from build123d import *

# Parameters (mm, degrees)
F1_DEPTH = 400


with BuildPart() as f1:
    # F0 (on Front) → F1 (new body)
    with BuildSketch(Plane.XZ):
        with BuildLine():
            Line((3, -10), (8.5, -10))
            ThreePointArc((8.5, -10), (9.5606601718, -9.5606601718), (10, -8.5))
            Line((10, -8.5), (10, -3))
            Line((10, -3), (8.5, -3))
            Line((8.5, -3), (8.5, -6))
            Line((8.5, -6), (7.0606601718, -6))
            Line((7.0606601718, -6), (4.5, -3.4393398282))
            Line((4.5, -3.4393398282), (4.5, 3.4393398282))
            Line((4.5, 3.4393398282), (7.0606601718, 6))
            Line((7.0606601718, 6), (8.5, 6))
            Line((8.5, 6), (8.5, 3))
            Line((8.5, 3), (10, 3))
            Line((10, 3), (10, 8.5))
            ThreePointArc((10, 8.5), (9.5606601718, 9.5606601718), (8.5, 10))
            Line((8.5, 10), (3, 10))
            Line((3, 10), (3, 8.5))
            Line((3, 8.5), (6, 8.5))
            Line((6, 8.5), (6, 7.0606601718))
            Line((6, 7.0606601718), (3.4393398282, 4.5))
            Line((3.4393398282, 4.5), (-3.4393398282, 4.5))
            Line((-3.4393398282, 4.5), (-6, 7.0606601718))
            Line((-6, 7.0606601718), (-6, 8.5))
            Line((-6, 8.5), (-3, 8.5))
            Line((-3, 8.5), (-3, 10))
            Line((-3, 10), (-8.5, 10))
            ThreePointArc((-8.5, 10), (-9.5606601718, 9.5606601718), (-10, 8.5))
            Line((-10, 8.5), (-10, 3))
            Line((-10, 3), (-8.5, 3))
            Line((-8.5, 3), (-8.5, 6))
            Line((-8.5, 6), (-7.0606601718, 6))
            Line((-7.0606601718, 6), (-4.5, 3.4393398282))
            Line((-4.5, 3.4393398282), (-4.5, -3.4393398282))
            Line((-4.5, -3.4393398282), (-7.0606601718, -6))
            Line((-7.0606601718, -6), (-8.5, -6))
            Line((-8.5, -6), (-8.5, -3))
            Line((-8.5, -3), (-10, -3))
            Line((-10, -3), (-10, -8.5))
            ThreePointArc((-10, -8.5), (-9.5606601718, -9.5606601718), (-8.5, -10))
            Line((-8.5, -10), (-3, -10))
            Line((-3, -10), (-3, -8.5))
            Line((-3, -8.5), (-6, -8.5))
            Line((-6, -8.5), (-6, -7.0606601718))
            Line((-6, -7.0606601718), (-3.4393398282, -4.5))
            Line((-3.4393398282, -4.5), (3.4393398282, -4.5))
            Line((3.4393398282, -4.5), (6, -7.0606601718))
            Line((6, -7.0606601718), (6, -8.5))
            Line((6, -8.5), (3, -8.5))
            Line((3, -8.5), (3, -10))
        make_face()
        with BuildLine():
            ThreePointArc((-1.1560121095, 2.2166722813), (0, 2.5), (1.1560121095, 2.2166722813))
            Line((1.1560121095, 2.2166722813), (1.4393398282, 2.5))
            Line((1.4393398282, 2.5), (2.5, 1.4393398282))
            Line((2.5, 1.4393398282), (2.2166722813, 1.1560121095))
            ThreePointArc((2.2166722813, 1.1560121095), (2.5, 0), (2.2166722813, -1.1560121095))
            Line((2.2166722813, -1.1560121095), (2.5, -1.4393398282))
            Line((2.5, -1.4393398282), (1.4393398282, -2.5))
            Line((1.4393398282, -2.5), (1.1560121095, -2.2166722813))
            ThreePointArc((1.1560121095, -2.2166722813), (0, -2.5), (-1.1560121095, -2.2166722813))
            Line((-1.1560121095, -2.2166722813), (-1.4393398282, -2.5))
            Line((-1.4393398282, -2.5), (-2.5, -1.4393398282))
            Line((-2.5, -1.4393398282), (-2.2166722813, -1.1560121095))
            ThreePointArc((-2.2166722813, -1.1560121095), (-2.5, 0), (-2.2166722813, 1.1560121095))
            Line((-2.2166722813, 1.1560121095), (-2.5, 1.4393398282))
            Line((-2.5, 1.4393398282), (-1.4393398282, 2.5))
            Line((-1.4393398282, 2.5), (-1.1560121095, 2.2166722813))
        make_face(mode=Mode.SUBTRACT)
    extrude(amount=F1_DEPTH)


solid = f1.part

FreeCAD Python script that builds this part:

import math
import FreeCAD as App
import Part
import Sketcher

doc = App.newDocument("Part")
body = doc.addObject("PartDesign::Body", "Body")

# Sketch on XZ plane
sketch1 = body.newObject("Sketcher::SketchObject", "Sketch")
sketch1.AttachmentSupport = (doc.getObject("XZ_Plane"), [""])
sketch1.MapMode = "FlatFace"
sketch1.addGeometry([
    Part.LineSegment(App.Vector(3, -10, 0), App.Vector(8.5, -10, 0)),  # 0
    Part.ArcOfCircle(Part.Circle(App.Vector(8.5, -8.5, 0), App.Vector(0, 0, 1), 1.5), math.radians(-90), math.radians(0)),  # 1
    Part.LineSegment(App.Vector(10, -8.5, 0), App.Vector(10, -3, 0)),  # 2
    Part.LineSegment(App.Vector(10, -3, 0), App.Vector(8.5, -3, 0)),  # 3
    Part.LineSegment(App.Vector(8.5, -3, 0), App.Vector(8.5, -6, 0)),  # 4
    Part.LineSegment(App.Vector(8.5, -6, 0), App.Vector(7.06066, -6, 0)),  # 5
    Part.LineSegment(App.Vector(7.06066, -6, 0), App.Vector(4.5, -3.43934, 0)),  # 6
    Part.LineSegment(App.Vector(4.5, -3.43934, 0), App.Vector(4.5, 3.43934, 0)),  # 7
    Part.LineSegment(App.Vector(4.5, 3.43934, 0), App.Vector(7.06066, 6, 0)),  # 8
    Part.LineSegment(App.Vector(7.06066, 6, 0), App.Vector(8.5, 6, 0)),  # 9
    Part.LineSegment(App.Vector(8.5, 6, 0), App.Vector(8.5, 3, 0)),  # 10
    Part.LineSegment(App.Vector(8.5, 3, 0), App.Vector(10, 3, 0)),  # 11
    Part.LineSegment(App.Vector(10, 3, 0), App.Vector(10, 8.5, 0)),  # 12
    Part.ArcOfCircle(Part.Circle(App.Vector(8.5, 8.5, 0), App.Vector(0, 0, 1), 1.5), math.radians(0), math.radians(90)),  # 13
    Part.LineSegment(App.Vector(8.5, 10, 0), App.Vector(3, 10, 0)),  # 14
    Part.LineSegment(App.Vector(3, 10, 0), App.Vector(3, 8.5, 0)),  # 15
    Part.LineSegment(App.Vector(3, 8.5, 0), App.Vector(6, 8.5, 0)),  # 16
    Part.LineSegment(App.Vector(6, 8.5, 0), App.Vector(6, 7.06066, 0)),  # 17
    Part.LineSegment(App.Vector(6, 7.06066, 0), App.Vector(3.43934, 4.5, 0)),  # 18
    Part.LineSegment(App.Vector(3.43934, 4.5, 0), App.Vector(-3.43934, 4.5, 0)),  # 19
    Part.LineSegment(App.Vector(-3.43934, 4.5, 0), App.Vector(-6, 7.06066, 0)),  # 20
    Part.LineSegment(App.Vector(-6, 7.06066, 0), App.Vector(-6, 8.5, 0)),  # 21
    Part.LineSegment(App.Vector(-6, 8.5, 0), App.Vector(-3, 8.5, 0)),  # 22
    Part.LineSegment(App.Vector(-3, 8.5, 0), App.Vector(-3, 10, 0)),  # 23
    Part.LineSegment(App.Vector(-3, 10, 0), App.Vector(-8.5, 10, 0)),  # 24
    Part.ArcOfCircle(Part.Circle(App.Vector(-8.5, 8.5, 0), App.Vector(0, 0, 1), 1.5), math.radians(90), math.radians(180)),  # 25
    Part.LineSegment(App.Vector(-10, 8.5, 0), App.Vector(-10, 3, 0)),  # 26
    Part.LineSegment(App.Vector(-10, 3, 0), App.Vector(-8.5, 3, 0)),  # 27
    Part.LineSegment(App.Vector(-8.5, 3, 0), App.Vector(-8.5, 6, 0)),  # 28
    Part.LineSegment(App.Vector(-8.5, 6, 0), App.Vector(-7.06066, 6, 0)),  # 29
    Part.LineSegment(App.Vector(-7.06066, 6, 0), App.Vector(-4.5, 3.43934, 0)),  # 30
    Part.LineSegment(App.Vector(-4.5, 3.43934, 0), App.Vector(-4.5, -3.43934, 0)),  # 31
    Part.LineSegment(App.Vector(-4.5, -3.43934, 0), App.Vector(-7.06066, -6, 0)),  # 32
    Part.LineSegment(App.Vector(-7.06066, -6, 0), App.Vector(-8.5, -6, 0)),  # 33
    Part.LineSegment(App.Vector(-8.5, -6, 0), App.Vector(-8.5, -3, 0)),  # 34
    Part.LineSegment(App.Vector(-8.5, -3, 0), App.Vector(-10, -3, 0)),  # 35
    Part.LineSegment(App.Vector(-10, -3, 0), App.Vector(-10, -8.5, 0)),  # 36
    Part.ArcOfCircle(Part.Circle(App.Vector(-8.5, -8.5, 0), App.Vector(0, 0, 1), 1.5), math.radians(180), math.radians(270)),  # 37
    Part.LineSegment(App.Vector(-8.5, -10, 0), App.Vector(-3, -10, 0)),  # 38
    Part.LineSegment(App.Vector(-3, -10, 0), App.Vector(-3, -8.5, 0)),  # 39
    Part.LineSegment(App.Vector(-3, -8.5, 0), App.Vector(-6, -8.5, 0)),  # 40
    Part.LineSegment(App.Vector(-6, -8.5, 0), App.Vector(-6, -7.06066, 0)),  # 41
    Part.LineSegment(App.Vector(-6, -7.06066, 0), App.Vector(-3.43934, -4.5, 0)),  # 42
    Part.LineSegment(App.Vector(-3.43934, -4.5, 0), App.Vector(3.43934, -4.5, 0)),  # 43
    Part.LineSegment(App.Vector(3.43934, -4.5, 0), App.Vector(6, -7.06066, 0)),  # 44
    Part.LineSegment(App.Vector(6, -7.06066, 0), App.Vector(6, -8.5, 0)),  # 45
    Part.LineSegment(App.Vector(6, -8.5, 0), App.Vector(3, -8.5, 0)),  # 46
    Part.LineSegment(App.Vector(3, -8.5, 0), App.Vector(3, -10, 0)),  # 47
    Part.LineSegment(App.Vector(-1.43934, 2.5, 0), App.Vector(-1.156012, 2.216672, 0)),  # 48
    Part.ArcOfCircle(Part.Circle(App.Vector(0, 0, 0), App.Vector(0, 0, 1), 2.5), math.radians(62.457603), math.radians(117.542397)),  # 49
    Part.LineSegment(App.Vector(1.156012, 2.216672, 0), App.Vector(1.43934, 2.5, 0)),  # 50
    Part.LineSegment(App.Vector(1.43934, 2.5, 0), App.Vector(2.5, 1.43934, 0)),  # 51
    Part.LineSegment(App.Vector(2.5, 1.43934, 0), App.Vector(2.216672, 1.156012, 0)),  # 52
    Part.ArcOfCircle(Part.Circle(App.Vector(0, 0, 0), App.Vector(0, 0, 1), 2.5), math.radians(-27.542397), math.radians(27.542397)),  # 53
    Part.LineSegment(App.Vector(2.216672, -1.156012, 0), App.Vector(2.5, -1.43934, 0)),  # 54
    Part.LineSegment(App.Vector(2.5, -1.43934, 0), App.Vector(1.43934, -2.5, 0)),  # 55
    Part.LineSegment(App.Vector(1.43934, -2.5, 0), App.Vector(1.156012, -2.216672, 0)),  # 56
    Part.ArcOfCircle(Part.Circle(App.Vector(0, 0, 0), App.Vector(0, 0, 1), 2.5), math.radians(-117.542397), math.radians(-62.457603)),  # 57
    Part.LineSegment(App.Vector(-1.156012, -2.216672, 0), App.Vector(-1.43934, -2.5, 0)),  # 58
    Part.LineSegment(App.Vector(-1.43934, -2.5, 0), App.Vector(-2.5, -1.43934, 0)),  # 59
    Part.LineSegment(App.Vector(-2.5, -1.43934, 0), App.Vector(-2.216672, -1.156012, 0)),  # 60
    Part.ArcOfCircle(Part.Circle(App.Vector(0, 0, 0), App.Vector(0, 0, 1), 2.5), math.radians(152.457603), math.radians(207.542397)),  # 61
    Part.LineSegment(App.Vector(-2.216672, 1.156012, 0), App.Vector(-2.5, 1.43934, 0)),  # 62
    Part.LineSegment(App.Vector(-2.5, 1.43934, 0), App.Vector(-1.43934, 2.5, 0)),  # 63
], False)
sketch1.addConstraint([
    Sketcher.Constraint("Tangent", 0, 2, 1, 1),
    Sketcher.Constraint("Tangent", 1, 2, 2, 1),
    Sketcher.Constraint("Coincident", 2, 2, 3, 1),
    Sketcher.Constraint("Coincident", 3, 2, 4, 1),
    Sketcher.Constraint("Coincident", 4, 2, 5, 1),
    Sketcher.Constraint("Coincident", 5, 2, 6, 1),
    Sketcher.Constraint("Coincident", 6, 2, 7, 1),
    Sketcher.Constraint("Coincident", 7, 2, 8, 1),
    Sketcher.Constraint("Coincident", 8, 2, 9, 1),
    Sketcher.Constraint("Coincident", 9, 2, 10, 1),
    Sketcher.Constraint("Coincident", 10, 2, 11, 1),
    Sketcher.Constraint("Coincident", 11, 2, 12, 1),
    Sketcher.Constraint("Tangent", 12, 2, 13, 1),
    Sketcher.Constraint("Tangent", 13, 2, 14, 1),
    Sketcher.Constraint("Coincident", 14, 2, 15, 1),
    Sketcher.Constraint("Coincident", 15, 2, 16, 1),
    Sketcher.Constraint("Coincident", 16, 2, 17, 1),
    Sketcher.Constraint("Coincident", 17, 2, 18, 1),
    Sketcher.Constraint("Coincident", 18, 2, 19, 1),
    Sketcher.Constraint("Coincident", 19, 2, 20, 1),
    Sketcher.Constraint("Coincident", 20, 2, 21, 1),
    Sketcher.Constraint("Coincident", 21, 2, 22, 1),
    Sketcher.Constraint("Coincident", 22, 2, 23, 1),
    Sketcher.Constraint("Coincident", 23, 2, 24, 1),
    Sketcher.Constraint("Tangent", 24, 2, 25, 1),
    Sketcher.Constraint("Tangent", 25, 2, 26, 1),
    Sketcher.Constraint("Coincident", 26, 2, 27, 1),
    Sketcher.Constraint("Coincident", 27, 2, 28, 1),
    Sketcher.Constraint("Coincident", 28, 2, 29, 1),
    Sketcher.Constraint("Coincident", 29, 2, 30, 1),
    Sketcher.Constraint("Coincident", 30, 2, 31, 1),
    Sketcher.Constraint("Coincident", 31, 2, 32, 1),
    Sketcher.Constraint("Coincident", 32, 2, 33, 1),
    Sketcher.Constraint("Coincident", 33, 2, 34, 1),
    Sketcher.Constraint("Coincident", 34, 2, 35, 1),
    Sketcher.Constraint("Coincident", 35, 2, 36, 1),
    Sketcher.Constraint("Tangent", 36, 2, 37, 1),
    Sketcher.Constraint("Tangent", 37, 2, 38, 1),
    Sketcher.Constraint("Coincident", 38, 2, 39, 1),
    Sketcher.Constraint("Coincident", 39, 2, 40, 1),
    Sketcher.Constraint("Coincident", 40, 2, 41, 1),
    Sketcher.Constraint("Coincident", 41, 2, 42, 1),
    Sketcher.Constraint("Coincident", 42, 2, 43, 1),
    Sketcher.Constraint("Coincident", 43, 2, 44, 1),
    Sketcher.Constraint("Coincident", 44, 2, 45, 1),
    Sketcher.Constraint("Coincident", 45, 2, 46, 1),
    Sketcher.Constraint("Coincident", 46, 2, 47, 1),
    Sketcher.Constraint("Coincident", 47, 2, 0, 1),
    Sketcher.Constraint("Coincident", 48, 2, 49, 2),
    Sketcher.Constraint("Coincident", 49, 1, 50, 1),
    Sketcher.Constraint("Coincident", 50, 2, 51, 1),
    Sketcher.Constraint("Coincident", 51, 2, 52, 1),
    Sketcher.Constraint("Coincident", 52, 2, 53, 2),
    Sketcher.Constraint("Coincident", 53, 1, 54, 1),
    Sketcher.Constraint("Coincident", 54, 2, 55, 1),
    Sketcher.Constraint("Coincident", 55, 2, 56, 1),
    Sketcher.Constraint("Coincident", 56, 2, 57, 2),
    Sketcher.Constraint("Coincident", 57, 1, 58, 1),
    Sketcher.Constraint("Coincident", 58, 2, 59, 1),
    Sketcher.Constraint("Coincident", 59, 2, 60, 1),
    Sketcher.Constraint("Coincident", 60, 2, 61, 2),
    Sketcher.Constraint("Coincident", 61, 1, 62, 1),
    Sketcher.Constraint("Coincident", 62, 2, 63, 1),
    Sketcher.Constraint("Coincident", 63, 2, 48, 1),
    Sketcher.Constraint("Horizontal", 0),
    Sketcher.Constraint("Vertical", 2),
    Sketcher.Constraint("Horizontal", 3),
    Sketcher.Constraint("Vertical", 4),
    Sketcher.Constraint("Horizontal", 5),
    Sketcher.Constraint("Vertical", 7),
    Sketcher.Constraint("Horizontal", 9),
    Sketcher.Constraint("Vertical", 10),
    Sketcher.Constraint("Horizontal", 11),
    Sketcher.Constraint("Vertical", 12),
    Sketcher.Constraint("Horizontal", 14),
    Sketcher.Constraint("Vertical", 15),
    Sketcher.Constraint("Horizontal", 16),
    Sketcher.Constraint("Vertical", 17),
    Sketcher.Constraint("Horizontal", 19),
    Sketcher.Constraint("Vertical", 21),
    Sketcher.Constraint("Horizontal", 22),
    Sketcher.Constraint("Vertical", 23),
    Sketcher.Constraint("Horizontal", 24),
    Sketcher.Constraint("Vertical", 26),
    Sketcher.Constraint("Horizontal", 27),
    Sketcher.Constraint("Vertical", 28),
    Sketcher.Constraint("Horizontal", 29),
    Sketcher.Constraint("Vertical", 31),
    Sketcher.Constraint("Horizontal", 33),
    Sketcher.Constraint("Vertical", 34),
    Sketcher.Constraint("Horizontal", 35),
    Sketcher.Constraint("Vertical", 36),
    Sketcher.Constraint("Horizontal", 38),
    Sketcher.Constraint("Vertical", 39),
    Sketcher.Constraint("Horizontal", 40),
    Sketcher.Constraint("Vertical", 41),
    Sketcher.Constraint("Horizontal", 43),
    Sketcher.Constraint("Vertical", 45),
    Sketcher.Constraint("Horizontal", 46),
    Sketcher.Constraint("Vertical", 47),
    Sketcher.Constraint("Coincident", 49, 3, -1, 1),
    Sketcher.Constraint("Coincident", 53, 3, -1, 1),
    Sketcher.Constraint("Coincident", 57, 3, -1, 1),
    Sketcher.Constraint("Coincident", 61, 3, -1, 1),
    Sketcher.Constraint("Equal", 1, 13),
    Sketcher.Constraint("Equal", 13, 25),
    Sketcher.Constraint("Equal", 25, 37),
    Sketcher.Constraint("Equal", 49, 53),
    Sketcher.Constraint("Equal", 53, 57),
    Sketcher.Constraint("Equal", 57, 61),
    Sketcher.Constraint("Symmetric", 1, 3, 25, 3, -1, 1),
    Sketcher.Constraint("Symmetric", 13, 3, 37, 3, -1, 1),
    Sketcher.Constraint("Symmetric", 3, 2, 27, 2, -1, 1),
    Sketcher.Constraint("Symmetric", 5, 2, 29, 2, -1, 1),
    Sketcher.Constraint("Symmetric", 6, 2, 30, 2, -1, 1),
    Sketcher.Constraint("Symmetric", 8, 2, 32, 2, -1, 1),
    Sketcher.Constraint("Symmetric", 10, 2, 34, 2, -1, 1),
    Sketcher.Constraint("Symmetric", 15, 2, 39, 2, -1, 1),
    Sketcher.Constraint("Symmetric", 17, 2, 41, 2, -1, 1),
    Sketcher.Constraint("Symmetric", 18, 2, 42, 2, -1, 1),
    Sketcher.Constraint("Symmetric", 20, 2, 44, 2, -1, 1),
    Sketcher.Constraint("Symmetric", 22, 2, 46, 2, -1, 1),
    Sketcher.Constraint("Symmetric", 50, 2, 58, 2, -1, 1),
    Sketcher.Constraint("Symmetric", 51, 2, 59, 2, -1, 1),
    Sketcher.Constraint("Symmetric", 54, 2, 62, 2, -1, 1),
    Sketcher.Constraint("Symmetric", 55, 2, 63, 2, -1, 1),
    Sketcher.Constraint("Symmetric", 13, 3, 25, 3, -2),
    Sketcher.Constraint("Symmetric", 17, 2, 20, 2, -2),
    Sketcher.Constraint("Symmetric", 15, 2, 22, 2, -2),
    Sketcher.Constraint("Symmetric", 10, 2, 27, 2, -2),
    Sketcher.Constraint("Symmetric", 8, 2, 29, 2, -2),
    Sketcher.Constraint("Symmetric", 55, 2, 58, 2, -2),
    Sketcher.Constraint("Symmetric", 54, 2, 59, 2, -2),
    Sketcher.Constraint("Perpendicular", 6, 8),
    Sketcher.Constraint("Parallel", 8, 18),
    Sketcher.Constraint("Perpendicular", 18, 20),
    Sketcher.Constraint("Perpendicular", 30, 32),
    Sketcher.Constraint("Perpendicular", 42, 44),
    Sketcher.Constraint("Parallel", 44, 48),
    Sketcher.Constraint("Perpendicular", 48, 50),
    Sketcher.Constraint("Perpendicular", 50, 51),
    Sketcher.Constraint("Perpendicular", 51, 52),
    Sketcher.Constraint("Perpendicular", 52, 54),
    Sketcher.Constraint("Perpendicular", 54, 55),
    Sketcher.Constraint("Perpendicular", 55, 56),
    Sketcher.Constraint("Perpendicular", 56, 58),
    Sketcher.Constraint("Perpendicular", 59, 60),
    Sketcher.Constraint("Perpendicular", 60, 62),
    Sketcher.Constraint("Horizontal", 12, 2, 15, 2),
    Sketcher.Constraint("Vertical", 0, 2, 3, 2),
    Sketcher.Constraint("Equal", 38, 2),
    Sketcher.Constraint("Equal", 46, 4),
    Sketcher.Constraint("Equal", 43, 7),
    Sketcher.Constraint("Equal", 33, 17),
    Sketcher.Constraint("Equal", 8, 18),
    Sketcher.Constraint("Equal", 50, 52),
    Sketcher.Constraint("Radius", 1, 1.5),
    Sketcher.Constraint("Radius", 49, 2.5),
    Sketcher.Constraint("DistanceX", 16, 1, 16, 2, 3.0),
    Sketcher.Constraint("DistanceX", 0, 1, 0, 2, 5.5),
    Sketcher.Constraint("DistanceY", 0, 2, -1, 1, 10.0),
    Sketcher.Constraint("Distance", 51, 1.5),
    Sketcher.Constraint("DistanceX", -1, 1, 6, 2, 4.5),
    Sketcher.Constraint("DistanceY", -1, 1, 50, 2, 2.5),
    Sketcher.Constraint("DistanceX", 5, 2, 5, 1, 1.43934),
])
pad1 = body.newObject("PartDesign::Pad", "Pad")
pad1.Profile = sketch1
pad1.Length = 400

doc.recompute()
